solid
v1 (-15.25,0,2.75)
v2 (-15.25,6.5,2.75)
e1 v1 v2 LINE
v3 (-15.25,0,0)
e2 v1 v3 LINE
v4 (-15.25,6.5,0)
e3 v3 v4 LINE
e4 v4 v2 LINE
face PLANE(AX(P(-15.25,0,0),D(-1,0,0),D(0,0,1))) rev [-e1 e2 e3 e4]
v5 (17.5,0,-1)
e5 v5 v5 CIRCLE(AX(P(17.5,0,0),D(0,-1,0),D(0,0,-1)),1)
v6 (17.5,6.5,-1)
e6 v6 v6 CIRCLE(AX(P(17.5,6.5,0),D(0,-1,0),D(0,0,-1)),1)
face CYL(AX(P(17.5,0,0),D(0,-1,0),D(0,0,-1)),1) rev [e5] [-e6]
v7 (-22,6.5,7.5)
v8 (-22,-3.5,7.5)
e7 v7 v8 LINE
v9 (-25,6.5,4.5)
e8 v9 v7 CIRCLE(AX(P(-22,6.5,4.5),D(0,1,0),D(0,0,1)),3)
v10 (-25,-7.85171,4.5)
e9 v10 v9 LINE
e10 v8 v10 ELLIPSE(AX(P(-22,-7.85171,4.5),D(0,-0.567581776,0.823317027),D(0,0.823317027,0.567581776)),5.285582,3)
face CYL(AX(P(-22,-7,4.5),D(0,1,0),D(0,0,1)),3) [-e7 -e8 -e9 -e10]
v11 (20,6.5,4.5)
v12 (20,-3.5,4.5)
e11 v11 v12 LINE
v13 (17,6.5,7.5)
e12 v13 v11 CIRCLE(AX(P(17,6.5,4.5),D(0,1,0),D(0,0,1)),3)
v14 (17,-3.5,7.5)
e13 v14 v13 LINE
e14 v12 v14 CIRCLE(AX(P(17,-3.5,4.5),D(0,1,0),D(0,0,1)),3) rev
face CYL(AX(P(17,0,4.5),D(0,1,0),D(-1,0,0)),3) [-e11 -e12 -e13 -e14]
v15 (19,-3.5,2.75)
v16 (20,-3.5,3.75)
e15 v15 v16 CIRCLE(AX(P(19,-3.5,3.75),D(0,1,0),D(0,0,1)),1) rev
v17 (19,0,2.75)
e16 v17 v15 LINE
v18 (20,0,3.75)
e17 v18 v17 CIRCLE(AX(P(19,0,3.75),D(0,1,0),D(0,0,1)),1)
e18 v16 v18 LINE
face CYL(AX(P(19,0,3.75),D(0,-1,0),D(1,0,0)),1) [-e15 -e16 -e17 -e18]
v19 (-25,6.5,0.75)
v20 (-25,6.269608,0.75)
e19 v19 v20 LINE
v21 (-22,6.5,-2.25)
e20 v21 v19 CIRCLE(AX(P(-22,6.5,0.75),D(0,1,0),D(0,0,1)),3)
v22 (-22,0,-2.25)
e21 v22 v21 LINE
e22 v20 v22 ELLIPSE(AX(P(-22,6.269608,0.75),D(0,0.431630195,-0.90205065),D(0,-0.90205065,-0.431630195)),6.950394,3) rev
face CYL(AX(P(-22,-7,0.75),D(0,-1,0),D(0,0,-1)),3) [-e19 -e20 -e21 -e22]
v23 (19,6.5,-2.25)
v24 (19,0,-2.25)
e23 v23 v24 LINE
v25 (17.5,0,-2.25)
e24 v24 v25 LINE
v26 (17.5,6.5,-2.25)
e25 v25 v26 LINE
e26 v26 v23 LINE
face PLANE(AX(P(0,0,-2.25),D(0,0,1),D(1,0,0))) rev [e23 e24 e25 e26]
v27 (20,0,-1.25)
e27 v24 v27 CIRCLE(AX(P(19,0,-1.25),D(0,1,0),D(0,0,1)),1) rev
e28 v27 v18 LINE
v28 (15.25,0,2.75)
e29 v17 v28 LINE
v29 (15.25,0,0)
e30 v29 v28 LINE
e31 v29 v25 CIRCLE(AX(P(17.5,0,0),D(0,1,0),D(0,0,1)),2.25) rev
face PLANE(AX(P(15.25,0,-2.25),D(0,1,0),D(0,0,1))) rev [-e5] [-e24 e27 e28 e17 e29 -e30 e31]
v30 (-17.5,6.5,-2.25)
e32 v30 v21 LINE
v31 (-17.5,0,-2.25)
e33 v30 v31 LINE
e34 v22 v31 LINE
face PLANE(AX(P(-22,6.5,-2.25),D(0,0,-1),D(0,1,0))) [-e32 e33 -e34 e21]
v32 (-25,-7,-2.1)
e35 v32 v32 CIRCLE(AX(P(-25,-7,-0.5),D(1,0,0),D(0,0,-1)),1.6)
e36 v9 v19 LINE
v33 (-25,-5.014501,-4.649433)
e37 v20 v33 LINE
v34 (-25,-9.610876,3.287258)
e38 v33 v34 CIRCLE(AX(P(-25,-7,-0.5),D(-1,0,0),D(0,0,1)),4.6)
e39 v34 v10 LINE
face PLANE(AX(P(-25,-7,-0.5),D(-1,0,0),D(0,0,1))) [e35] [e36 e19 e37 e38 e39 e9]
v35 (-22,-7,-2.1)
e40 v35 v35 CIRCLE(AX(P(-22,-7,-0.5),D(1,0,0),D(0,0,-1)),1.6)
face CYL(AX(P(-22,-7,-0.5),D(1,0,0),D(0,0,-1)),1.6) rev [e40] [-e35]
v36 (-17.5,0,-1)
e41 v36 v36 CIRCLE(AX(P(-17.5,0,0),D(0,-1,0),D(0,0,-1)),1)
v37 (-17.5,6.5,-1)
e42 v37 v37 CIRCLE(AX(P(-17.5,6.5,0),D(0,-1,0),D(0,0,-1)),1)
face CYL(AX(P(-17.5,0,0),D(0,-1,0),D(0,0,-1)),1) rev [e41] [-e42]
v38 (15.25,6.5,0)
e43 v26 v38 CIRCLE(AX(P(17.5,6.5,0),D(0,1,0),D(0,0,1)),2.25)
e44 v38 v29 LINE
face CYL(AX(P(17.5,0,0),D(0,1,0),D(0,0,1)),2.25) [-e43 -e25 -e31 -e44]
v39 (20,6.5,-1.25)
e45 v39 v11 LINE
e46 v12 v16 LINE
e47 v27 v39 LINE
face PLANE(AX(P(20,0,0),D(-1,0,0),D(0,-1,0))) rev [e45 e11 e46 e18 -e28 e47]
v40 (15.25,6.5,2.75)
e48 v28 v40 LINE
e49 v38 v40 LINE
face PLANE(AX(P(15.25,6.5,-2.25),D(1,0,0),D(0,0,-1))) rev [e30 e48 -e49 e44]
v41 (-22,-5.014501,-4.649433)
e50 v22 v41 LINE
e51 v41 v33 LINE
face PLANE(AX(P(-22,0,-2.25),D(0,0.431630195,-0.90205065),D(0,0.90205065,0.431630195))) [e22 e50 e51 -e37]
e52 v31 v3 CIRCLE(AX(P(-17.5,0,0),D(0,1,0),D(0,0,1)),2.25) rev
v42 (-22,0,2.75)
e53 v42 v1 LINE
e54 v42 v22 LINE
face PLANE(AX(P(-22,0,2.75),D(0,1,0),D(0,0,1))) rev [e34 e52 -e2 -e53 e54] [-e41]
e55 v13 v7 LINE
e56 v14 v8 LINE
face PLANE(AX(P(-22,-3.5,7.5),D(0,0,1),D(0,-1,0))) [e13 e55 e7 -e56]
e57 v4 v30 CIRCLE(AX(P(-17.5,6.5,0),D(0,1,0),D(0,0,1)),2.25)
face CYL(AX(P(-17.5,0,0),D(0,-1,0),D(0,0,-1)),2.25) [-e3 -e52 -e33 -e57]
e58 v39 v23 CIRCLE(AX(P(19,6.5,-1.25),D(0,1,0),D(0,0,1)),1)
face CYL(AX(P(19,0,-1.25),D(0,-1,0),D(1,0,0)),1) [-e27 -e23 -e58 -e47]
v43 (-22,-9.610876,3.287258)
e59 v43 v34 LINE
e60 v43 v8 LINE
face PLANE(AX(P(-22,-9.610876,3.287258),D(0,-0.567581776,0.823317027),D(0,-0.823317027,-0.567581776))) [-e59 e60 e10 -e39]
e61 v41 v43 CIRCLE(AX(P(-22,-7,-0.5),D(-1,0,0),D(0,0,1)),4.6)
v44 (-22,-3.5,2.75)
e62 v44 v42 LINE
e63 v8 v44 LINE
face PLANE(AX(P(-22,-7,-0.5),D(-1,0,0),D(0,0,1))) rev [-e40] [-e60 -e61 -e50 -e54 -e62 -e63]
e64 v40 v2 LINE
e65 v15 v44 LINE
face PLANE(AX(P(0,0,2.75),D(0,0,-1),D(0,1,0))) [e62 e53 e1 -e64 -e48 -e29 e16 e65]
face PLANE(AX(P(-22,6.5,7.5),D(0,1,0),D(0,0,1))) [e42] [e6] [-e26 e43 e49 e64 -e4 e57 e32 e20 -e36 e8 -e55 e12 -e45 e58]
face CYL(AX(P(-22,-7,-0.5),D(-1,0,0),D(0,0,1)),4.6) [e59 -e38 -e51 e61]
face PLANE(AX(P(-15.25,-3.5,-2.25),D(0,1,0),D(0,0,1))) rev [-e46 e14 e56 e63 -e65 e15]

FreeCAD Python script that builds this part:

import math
import FreeCAD as App
import Part
import Sketcher
from FreeCAD import Vector


def edges_at(feature, points):
    """Names of the edges that pass closest to the given points."""
    edges = feature.Shape.Edges
    near = lambda p: min(range(len(edges)), key=lambda i: edges[i].distToShape(Part.Vertex(*p))[0])
    return sorted({f"Edge{near(p) + 1}" for p in points})


def add_polygon(sketch, points):
    """Adds a closed chain of lines whose ends are joined by coincident constraints."""
    first, n = sketch.GeometryCount, len(points)
    for a, b in zip(points, points[1:] + points[:1]):
        sketch.addGeometry(Part.LineSegment(App.Vector(*a, 0), App.Vector(*b, 0)), False)
    for i in range(n):
        sketch.addConstraint(Sketcher.Constraint("Coincident", first + i, 2, first + (i + 1) % n, 1))

doc = App.newDocument("Part")
params = doc.addObject("Spreadsheet::Sheet", "Params")
for row, (alias, value) in enumerate([
    ("sketch1_radius", "4.6 mm"),
    ("sketch1_width", "10 mm"),
    ("sketch1_width2", "6.5 mm"),
    ("sketch1_height", "9.75 mm"),
    ("pad1_length", "3 mm"),
    ("sketch2_width", "10 mm"),
    ("sketch2_height", "9.75 mm"),
    ("pad2_length", "6.75 mm"),
    ("sketch3_height", "3.5 mm"),
    ("sketch3_width", "6.75 mm"),
    ("pocket1_length", "5 mm"),
    ("sketch4_width", "10 mm"),
    ("sketch4_height", "4.75 mm"),
    ("pad3_length", "35.25 mm"),
    ("sketch5_height", "6.5 mm"),
    ("sketch5_width", "4.75 mm"),
    ("pad4_length", "5 mm"),
    ("sketch6_diameter", "2 mm"),
    ("hole_diameter", "2 mm"),
    ("sketch7_diameter", "3.2 mm"),
    ("hole2_diameter", "3.2 mm"),
    ("fillet_radius", "1 mm"),
    ("fillet2_radius", "2.25 mm"),
    ("fillet3_radius", "3 mm"),
], start=1):
    params.set(f"A{row}", alias)
    params.set(f"B{row}", "=" + value)
    params.setAlias(f"B{row}", alias)

body = doc.addObject("PartDesign::Body", "Body")

sketch1 = body.newObject("Sketcher::SketchObject", "Sketch")
sketch1.AttachmentSupport = (doc.getObject("YZ_Plane"), [""])
sketch1.MapMode = "FlatFace"
sketch1.AttachmentOffset = App.Placement(Vector(0, 0, -25), App.Rotation())
sketch1.addGeometry(Part.LineSegment(Vector(6.5, -2.25, 0), Vector(0, -2.25, 0)), False)
sketch1.addGeometry(Part.LineSegment(Vector(0, -2.25, 0), Vector(-5.014501, -4.649433, 0)), False)
sketch1.addGeometry(Part.ArcOfCircle(Part.Circle(Vector(-7, -0.5, 0), Vector(0, 0, 1), 4.6), math.radians(124.581767), math.radians(295.571061)), False)
sketch1.addGeometry(Part.LineSegment(Vector(-9.610876, 3.287258, 0), Vector(-3.5, 7.5, 0)), False)
sketch1.addGeometry(Part.LineSegment(Vector(-3.5, 7.5, 0), Vector(6.5, 7.5, 0)), False)
sketch1.addGeometry(Part.LineSegment(Vector(6.5, 7.5, 0), Vector(6.5, -2.25, 0)), False)
sketch1.addConstraint(Sketcher.Constraint("Coincident", 0, 2, 1, 1))
sketch1.addConstraint(Sketcher.Constraint("Tangent", 1, 2, 2, 2))
sketch1.addConstraint(Sketcher.Constraint("Tangent", 2, 1, 3, 1))
sketch1.addConstraint(Sketcher.Constraint("Coincident", 3, 2, 4, 1))
sketch1.addConstraint(Sketcher.Constraint("Coincident", 4, 2, 5, 1))
sketch1.addConstraint(Sketcher.Constraint("Coincident", 5, 2, 0, 1))
sketch1.addConstraint(Sketcher.Constraint("Horizontal", 0))
sketch1.addConstraint(Sketcher.Constraint("Horizontal", 4))
sketch1.addConstraint(Sketcher.Constraint("Vertical", 5))
sketch1.addConstraint(Sketcher.Constraint("PointOnObject", 0, 2, -2))
sketch1.addConstraint(Sketcher.Constraint("Radius", 2, 4.6))
sketch1.addConstraint(Sketcher.Constraint("DistanceX", 4, 1, 4, 2, 10.0))
sketch1.addConstraint(Sketcher.Constraint("DistanceX", 0, 2, 0, 1, 6.5))
sketch1.addConstraint(Sketcher.Constraint("DistanceX", 2, 3, -1, 1, 7.0))
sketch1.addConstraint(Sketcher.Constraint("DistanceY", 2, 3, 3, 2, 8.0))
sketch1.addConstraint(Sketcher.Constraint("DistanceY", 5, 2, 5, 1, 9.75))
sketch1.addConstraint(Sketcher.Constraint("DistanceY", 2, 3, -1, 1, 0.5))
sketch1.setExpression("Constraints[10]", "Params.sketch1_radius")
sketch1.setExpression("Constraints[11]", "Params.sketch1_width")
sketch1.setExpression("Constraints[12]", "Params.sketch1_width2")
sketch1.setExpression("Constraints[15]", "Params.sketch1_height")
pad1 = body.newObject("PartDesign::Pad", "Pad")
pad1.Profile = sketch1
pad1.setExpression("Length", "Params.pad1_length")

sketch2 = body.newObject("Sketcher::SketchObject", "Sketch001")
sketch2.AttachmentSupport = (doc.getObject("YZ_Plane"), [""])
sketch2.MapMode = "FlatFace"
sketch2.AttachmentOffset = App.Placement(Vector(0, 0, -22), App.Rotation())
add_polygon(sketch2, [(6.5, 7.5), (-3.5, 7.5), (-3.5, -2.25), (6.5, -2.25)])
sketch2.addConstraint(Sketcher.Constraint("Horizontal", 0))
sketch2.addConstraint(Sketcher.Constraint("Vertical", 1))
sketch2.addConstraint(Sketcher.Constraint("Horizontal", 2))
sketch2.addConstraint(Sketcher.Constraint("Vertical", 3))
sketch2.addConstraint(Sketcher.Constraint("DistanceX", 0, 2, 0, 1, 10.0))
sketch2.addConstraint(Sketcher.Constraint("DistanceY", 1, 2, 1, 1, 9.75))
sketch2.addConstraint(Sketcher.Constraint("DistanceX", 0, 2, -1, 1, 3.5))
sketch2.addConstraint(Sketcher.Constraint("DistanceY", -1, 1, 0, 2, 7.5))
sketch2.setExpression("Constraints[8]", "Params.sketch2_width")
sketch2.setExpression("Constraints[9]", "Params.sketch2_height")
pad2 = body.newObject("PartDesign::Pad", "Pad001")
pad2.Profile = sketch2
pad2.setExpression("Length", "Params.pad2_length")

sketch3 = body.newObject("Sketcher::SketchObject", "Sketch002")
sketch3.AttachmentSupport = (doc.getObject("XY_Plane"), [""])
sketch3.MapMode = "FlatFace"
sketch3.AttachmentOffset = App.Placement(Vector(0, 0, -2.25), App.Rotation())
add_polygon(sketch3, [(-15.25, 0), (-15.25, -3.5), (-22, -3.5), (-22, 0)])
sketch3.addConstraint(Sketcher.Constraint("Vertical", 0))
sketch3.addConstraint(Sketcher.Constraint("Horizontal", 1))
sketch3.addConstraint(Sketcher.Constraint("Vertical", 2))
sketch3.addConstraint(Sketcher.Constraint("Horizontal", 3))
sketch3.addConstraint(Sketcher.Constraint("PointOnObject", 2, 2, -1))
sketch3.addConstraint(Sketcher.Constraint("DistanceY", 0, 2, 0, 1, 3.5))
sketch3.addConstraint(Sketcher.Constraint("DistanceX", 1, 2, -1, 1, 22.0))
sketch3.addConstraint(Sketcher.Constraint("DistanceX", 1, 2, 1, 1, 6.75))
sketch3.setExpression("Constraints[9]", "Params.sketch3_height")
sketch3.setExpression("Constraints[11]", "Params.sketch3_width")
pocket1 = body.newObject("PartDesign::Pocket", "Pocket")
pocket1.Profile = sketch3
pocket1.setExpression("Length", "Params.pocket1_length")
pocket1.Reversed = True

sketch4 = body.newObject("Sketcher::SketchObject", "Sketch003")
sketch4.AttachmentSupport = (doc.getObject("YZ_Plane"), [""])
sketch4.MapMode = "FlatFace"
sketch4.AttachmentOffset = App.Placement(Vector(0, 0, -15.25), App.Rotation())
add_polygon(sketch4, [(6.5, 7.5), (-3.5, 7.5), (-3.5, 2.75), (6.5, 2.75)])
sketch4.addConstraint(Sketcher.Constraint("Horizontal", 0))
sketch4.addConstraint(Sketcher.Constraint("Vertical", 1))
sketch4.addConstraint(Sketcher.Constraint("Horizontal", 2))
sketch4.addConstraint(Sketcher.Constraint("Vertical", 3))
sketch4.addConstraint(Sketcher.Constraint("DistanceX", 0, 2, 0, 1, 10.0))
sketch4.addConstraint(Sketcher.Constraint("DistanceY", 1, 2, 1, 1, 4.75))
sketch4.addConstraint(Sketcher.Constraint("DistanceX", 0, 2, -1, 1, 3.5))
sketch4.addConstraint(Sketcher.Constraint("DistanceY", -1, 1, 0, 2, 7.5))
sketch4.setExpression("Constraints[8]", "Params.sketch4_width")
sketch4.setExpression("Constraints[9]", "Params.sketch4_height")
pad3 = body.newObject("PartDesign::Pad", "Pad002")
pad3.Profile = sketch4
pad3.setExpression("Length", "Params.pad3_length")

sketch5 = body.newObject("Sketcher::SketchObject", "Sketch004")
sketch5.AttachmentSupport = (doc.getObject("XY_Plane"), [""])
sketch5.MapMode = "FlatFace"
sketch5.AttachmentOffset = App.Placement(Vector(0, 0, 2.75), App.Rotation())
add_polygon(sketch5, [(20, 6.5), (20, 0), (15.25, 0), (15.25, 6.5)])
sketch5.addConstraint(Sketcher.Constraint("Vertical", 0))
sketch5.addConstraint(Sketcher.Constraint("Horizontal", 1))
sketch5.addConstraint(Sketcher.Constraint("Vertical", 2))
sketch5.addConstraint(Sketcher.Constraint("Horizontal", 3))
sketch5.addConstraint(Sketcher.Constraint("PointOnObject", 0, 2, -1))
sketch5.addConstraint(Sketcher.Constraint("DistanceY", 0, 2, 0, 1, 6.5))
sketch5.addConstraint(Sketcher.Constraint("DistanceX", -1, 1, 0, 2, 20.0))
sketch5.addConstraint(Sketcher.Constraint("DistanceX", 1, 2, 1, 1, 4.75))
sketch5.setExpression("Constraints[9]", "Params.sketch5_height")
sketch5.setExpression("Constraints[11]", "Params.sketch5_width")
pad4 = body.newObject("PartDesign::Pad", "Pad003")
pad4.Profile = sketch5
pad4.setExpression("Length", "Params.pad4_length")
pad4.Reversed = True

sketch6 = body.newObject("Sketcher::SketchObject", "Sketch005")
sketch6.AttachmentSupport = (doc.getObject("XZ_Plane"), [""])
sketch6.MapMode = "FlatFace"
sketch6.addGeometry(Part.Circle(Vector(17.5, 0, 0), Vector(0, 0, 1), 1), False)
sketch6.addGeometry(Part.Circle(Vector(-17.5, 0, 0), Vector(0, 0, 1), 1), False)
sketch6.addConstraint(Sketcher.Constraint("Equal", 0, 1))
sketch6.addConstraint(Sketcher.Constraint("Symmetric", 0, 3, 1, 3, -1, 1))
sketch6.addConstraint(Sketcher.Constraint("PointOnObject", 0, 3, -1))
sketch6.addConstraint(Sketcher.Constraint("Diameter", 0, 2.0))
sketch6.addConstraint(Sketcher.Constraint("DistanceX", 1, 3, 0, 3, 35.0))
sketch6.setExpression("Constraints[3]", "Params.sketch6_diameter")
doc.recompute()
hole = body.newObject("PartDesign::Hole", "Hole")
hole.Profile = sketch6
hole.ThreadType = "None"
hole.setExpression("Diameter", "Params.hole_diameter")
hole.DepthType = "ThroughAll"

sketch7 = body.newObject("Sketcher::SketchObject", "Sketch006")
sketch7.AttachmentSupport = (doc.getObject("YZ_Plane"), [""])
sketch7.MapMode = "FlatFace"
sketch7.AttachmentOffset = App.Placement(Vector(0, 0, -22), App.Rotation())
sketch7.addGeometry(Part.Circle(Vector(-7, -0.5, 0), Vector(0, 0, 1), 1.6), False)
sketch7.addConstraint(Sketcher.Constraint("Diameter", 0, 3.2))
sketch7.addConstraint(Sketcher.Constraint("DistanceX", 0, 3, -1, 1, 7.0))
sketch7.addConstraint(Sketcher.Constraint("DistanceY", 0, 3, -1, 1, 0.5))
sketch7.setExpression("Constraints[0]", "Params.sketch7_diameter")
doc.recompute()
hole2 = body.newObject("PartDesign::Hole", "Hole001")
hole2.Profile = sketch7
hole2.ThreadType = "None"
hole2.setExpression("Diameter", "Params.hole2_diameter")
hole2.DepthType = "ThroughAll"
doc.recompute()

fillet = body.newObject("PartDesign::Fillet", "Fillet")
fillet.Base = (hole2, edges_at(hole2, [(20, -1.75, 2.75), (20, 3.25, -2.25)]))
fillet.setExpression("Radius", "Params.fillet_radius")
doc.recompute()

fillet2 = body.newObject("PartDesign::Fillet", "Fillet001")
fillet2.Base = (fillet, edges_at(fillet, [(-15.25, 3.25, -2.25), (15.25, 3.25, -2.25)]))
fillet2.setExpression("Radius", "Params.fillet2_radius")
doc.recompute()

fillet3 = body.newObject("PartDesign::Fillet", "Fillet002")
fillet3.Base = (fillet2, edges_at(fillet2, [(20, 1.5, 7.5), (-25, 3.25, -2.25), (-25, 1.5, 7.5)]))
fillet3.setExpression("Radius", "Params.fillet3_radius")

doc.recompute()
